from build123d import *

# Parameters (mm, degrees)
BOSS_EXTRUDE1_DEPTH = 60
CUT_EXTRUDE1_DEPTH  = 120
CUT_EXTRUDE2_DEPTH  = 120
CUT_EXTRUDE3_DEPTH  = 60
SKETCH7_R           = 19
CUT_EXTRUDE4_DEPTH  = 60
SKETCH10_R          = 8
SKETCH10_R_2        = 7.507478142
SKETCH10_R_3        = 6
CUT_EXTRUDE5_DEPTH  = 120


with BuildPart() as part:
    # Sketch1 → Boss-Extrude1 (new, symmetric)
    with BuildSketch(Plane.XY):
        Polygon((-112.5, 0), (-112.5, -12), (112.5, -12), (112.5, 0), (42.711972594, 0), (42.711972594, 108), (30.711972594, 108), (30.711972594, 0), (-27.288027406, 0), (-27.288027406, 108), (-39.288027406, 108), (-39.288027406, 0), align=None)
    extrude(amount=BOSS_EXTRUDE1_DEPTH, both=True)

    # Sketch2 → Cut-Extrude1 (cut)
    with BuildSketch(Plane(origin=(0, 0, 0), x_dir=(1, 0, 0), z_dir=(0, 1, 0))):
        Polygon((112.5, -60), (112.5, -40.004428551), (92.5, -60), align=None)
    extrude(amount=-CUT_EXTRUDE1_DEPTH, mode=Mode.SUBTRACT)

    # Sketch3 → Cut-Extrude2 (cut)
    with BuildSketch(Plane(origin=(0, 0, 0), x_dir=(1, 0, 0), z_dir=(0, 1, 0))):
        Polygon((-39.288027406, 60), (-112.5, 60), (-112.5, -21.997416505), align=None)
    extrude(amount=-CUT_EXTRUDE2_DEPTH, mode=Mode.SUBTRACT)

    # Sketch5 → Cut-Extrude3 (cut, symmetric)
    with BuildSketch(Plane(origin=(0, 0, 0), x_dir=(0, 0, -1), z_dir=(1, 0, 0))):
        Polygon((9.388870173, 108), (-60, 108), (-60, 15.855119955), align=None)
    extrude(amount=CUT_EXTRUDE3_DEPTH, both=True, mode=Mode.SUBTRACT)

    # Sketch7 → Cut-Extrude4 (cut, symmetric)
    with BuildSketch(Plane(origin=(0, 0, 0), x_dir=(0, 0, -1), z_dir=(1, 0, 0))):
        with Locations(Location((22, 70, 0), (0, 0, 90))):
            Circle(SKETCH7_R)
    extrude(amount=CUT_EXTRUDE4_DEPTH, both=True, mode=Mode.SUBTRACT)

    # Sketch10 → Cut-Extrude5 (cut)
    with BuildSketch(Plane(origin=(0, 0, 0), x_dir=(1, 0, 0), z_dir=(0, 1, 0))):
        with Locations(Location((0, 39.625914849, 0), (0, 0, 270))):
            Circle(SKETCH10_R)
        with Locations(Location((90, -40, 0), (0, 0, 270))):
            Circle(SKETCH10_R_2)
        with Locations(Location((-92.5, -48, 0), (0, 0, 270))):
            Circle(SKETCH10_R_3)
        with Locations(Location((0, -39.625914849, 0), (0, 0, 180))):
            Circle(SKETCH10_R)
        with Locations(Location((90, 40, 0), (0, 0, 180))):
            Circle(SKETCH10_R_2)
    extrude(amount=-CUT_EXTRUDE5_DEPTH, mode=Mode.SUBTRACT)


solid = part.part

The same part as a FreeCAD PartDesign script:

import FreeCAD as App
import Part
import Sketcher

V = App.Vector

doc = App.newDocument("Part")
params = doc.addObject("Spreadsheet::Sheet", "Params")
for row, (alias, value) in enumerate([
    ("sketch1_width", "225 mm"),
    ("sketch1_width2", "12 mm"),
    ("sketch1_width3", "58 mm"),
    ("sketch1_height", "108 mm"),
    ("pad1_length", "120 mm"),
    ("sketch2_width", "20 mm"),
    ("pocket1_length", "120 mm"),
    ("pocket2_length", "120 mm"),
    ("pocket3_length", "120 mm"),
    ("sketch5_diameter", "38 mm"),
    ("pocket4_length", "120 mm"),
    ("sketch6_diameter", "16 mm"),
    ("sketch6_diameter2", "12 mm"),
    ("pocket5_length", "120 mm"),
], start=1):
    params.set(f"A{row}", alias)
    params.set(f"B{row}", "=" + value)
    params.setAlias(f"B{row}", alias)

body = doc.addObject("PartDesign::Body", "Body")

# Sketch on XY plane
sketch1 = doc.addObject("Sketcher::SketchObject", "Sketch")
body.addObject(sketch1)
sketch1.AttachmentSupport = (doc.XY_Plane, [""])
sketch1.MapMode = "FlatFace"
sketch1.addGeometry(Part.LineSegment(V(-112.5, 0, 0), V(-112.5, -12, 0)), False)
sketch1.addGeometry(Part.LineSegment(V(-112.5, -12, 0), V(112.5, -12, 0)), False)
sketch1.addGeometry(Part.LineSegment(V(112.5, -12, 0), V(112.5, 0, 0)), False)
sketch1.addGeometry(Part.LineSegment(V(112.5, 0, 0), V(42.711973, 0, 0)), False)
sketch1.addGeometry(Part.LineSegment(V(42.711973, 0, 0), V(42.711973, 108, 0)), False)
sketch1.addGeometry(Part.LineSegment(V(42.711973, 108, 0), V(30.711973, 108, 0)), False)
sketch1.addGeometry(Part.LineSegment(V(30.711973, 108, 0), V(30.711973, 0, 0)), False)
sketch1.addGeometry(Part.LineSegment(V(30.711973, 0, 0), V(-27.288027, 0, 0)), False)
sketch1.addGeometry(Part.LineSegment(V(-27.288027, 0, 0), V(-27.288027, 108, 0)), False)
sketch1.addGeometry(Part.LineSegment(V(-27.288027, 108, 0), V(-39.288027, 108, 0)), False)
sketch1.addGeometry(Part.LineSegment(V(-39.288027, 108, 0), V(-39.288027, 0, 0)), False)
sketch1.addGeometry(Part.LineSegment(V(-39.288027, 0, 0), V(-112.5, 0, 0)), False)
sketch1.addConstraint(Sketcher.Constraint("Coincident", 0, 2, 1, 1))
sketch1.addConstraint(Sketcher.Constraint("Coincident", 1, 2, 2, 1))
sketch1.addConstraint(Sketcher.Constraint("Coincident", 2, 2, 3, 1))
sketch1.addConstraint(Sketcher.Constraint("Coincident", 3, 2, 4, 1))
sketch1.addConstraint(Sketcher.Constraint("Coincident", 4, 2, 5, 1))
sketch1.addConstraint(Sketcher.Constraint("Coincident", 5, 2, 6, 1))
sketch1.addConstraint(Sketcher.Constraint("Coincident", 6, 2, 7, 1))
sketch1.addConstraint(Sketcher.Constraint("Coincident", 7, 2, 8, 1))
sketch1.addConstraint(Sketcher.Constraint("Coincident", 8, 2, 9, 1))
sketch1.addConstraint(Sketcher.Constraint("Coincident", 9, 2, 10, 1))
sketch1.addConstraint(Sketcher.Constraint("Coincident", 10, 2, 11, 1))
sketch1.addConstraint(Sketcher.Constraint("Coincident", 11, 2, 0, 1))
sketch1.addConstraint(Sketcher.Constraint("Vertical", 0))
sketch1.addConstraint(Sketcher.Constraint("Horizontal", 1))
sketch1.addConstraint(Sketcher.Constraint("Vertical", 2))
sketch1.addConstraint(Sketcher.Constraint("Horizontal", 3))
sketch1.addConstraint(Sketcher.Constraint("Vertical", 4))
sketch1.addConstraint(Sketcher.Constraint("Horizontal", 5))
sketch1.addConstraint(Sketcher.Constraint("Vertical", 6))
sketch1.addConstraint(Sketcher.Constraint("Horizontal", 7))
sketch1.addConstraint(Sketcher.Constraint("Vertical", 8))
sketch1.addConstraint(Sketcher.Constraint("Horizontal", 9))
sketch1.addConstraint(Sketcher.Constraint("Vertical", 10))
sketch1.addConstraint(Sketcher.Constraint("Horizontal", 11))
sketch1.addConstraint(Sketcher.Constraint("Symmetric", 2, 2, 11, 2, -1, 1))
sketch1.addConstraint(Sketcher.Constraint("PointOnObject", 2, 2, -1))
sketch1.addConstraint(Sketcher.Constraint("PointOnObject", 6, 2, -1))
sketch1.addConstraint(Sketcher.Constraint("Horizontal", 5, 2, 8, 2))
sketch1.addConstraint(Sketcher.Constraint("Equal", 5, 9))
sketch1.addConstraint(Sketcher.Constraint("Equal", 9, 0))
sketch1.addConstraint(Sketcher.Constraint("DistanceX", 1, 1, 1, 2, 225.0))
sketch1.addConstraint(Sketcher.Constraint("DistanceX", 5, 2, 5, 1, 12.0))
sketch1.addConstraint(Sketcher.Constraint("DistanceX", 7, 2, 7, 1, 58.0))
sketch1.addConstraint(Sketcher.Constraint("DistanceY", 4, 1, 4, 2, 108.0))
sketch1.addConstraint(Sketcher.Constraint("DistanceX", 3, 2, 3, 1, 69.788027))
sketch1.setExpression("Constraints[30]", "Params.sketch1_width")
sketch1.setExpression("Constraints[31]", "Params.sketch1_width2")
sketch1.setExpression("Constraints[32]", "Params.sketch1_width3")
sketch1.setExpression("Constraints[33]", "Params.sketch1_height")
pad1 = doc.addObject("PartDesign::Pad", "Pad")
body.addObject(pad1)
pad1.Profile = sketch1
pad1.setExpression("Length", "Params.pad1_length")
pad1.Midplane = True

# Sketch on XZ plane
sketch2 = doc.addObject("Sketcher::SketchObject", "Sketch001")
body.addObject(sketch2)
sketch2.AttachmentSupport = (doc.XZ_Plane, [""])
sketch2.MapMode = "FlatFace"
sketch2.addGeometry(Part.LineSegment(V(112.5, 60, 0), V(112.5, 40.004429, 0)), False)
sketch2.addGeometry(Part.LineSegment(V(112.5, 40.004429, 0), V(92.5, 60, 0)), False)
sketch2.addGeometry(Part.LineSegment(V(92.5, 60, 0), V(112.5, 60, 0)), False)
sketch2.addConstraint(Sketcher.Constraint("Coincident", 0, 2, 1, 1))
sketch2.addConstraint(Sketcher.Constraint("Coincident", 1, 2, 2, 1))
sketch2.addConstraint(Sketcher.Constraint("Coincident", 2, 2, 0, 1))
sketch2.addConstraint(Sketcher.Constraint("Vertical", 0))
sketch2.addConstraint(Sketcher.Constraint("Horizontal", 2))
sketch2.addConstraint(Sketcher.Constraint("DistanceX", 2, 1, 2, 2, 20.0))
sketch2.addConstraint(Sketcher.Constraint("DistanceY", -1, 1, 1, 2, 60.0))
sketch2.addConstraint(Sketcher.Constraint("DistanceX", -1, 1, 0, 2, 112.5))
sketch2.addConstraint(Sketcher.Constraint("DistanceY", 0, 2, 0, 1, 19.995571))
sketch2.setExpression("Constraints[5]", "Params.sketch2_width")
pocket1 = doc.addObject("PartDesign::Pocket", "Pocket")
body.addObject(pocket1)
pocket1.Profile = sketch2
pocket1.setExpression("Length", "Params.pocket1_length")
pocket1.Reversed = True

# Sketch on XZ plane
sketch3 = doc.addObject("Sketcher::SketchObject", "Sketch002")
body.addObject(sketch3)
sketch3.AttachmentSupport = (doc.XZ_Plane, [""])
sketch3.MapMode = "FlatFace"
sketch3.addGeometry(Part.LineSegment(V(-39.288027, -60, 0), V(-112.5, -60, 0)), False)
sketch3.addGeometry(Part.LineSegment(V(-112.5, -60, 0), V(-112.5, 21.997417, 0)), False)
sketch3.addGeometry(Part.LineSegment(V(-112.5, 21.997417, 0), V(-39.288027, -60, 0)), False)
sketch3.addConstraint(Sketcher.Constraint("Coincident", 0, 2, 1, 1))
sketch3.addConstraint(Sketcher.Constraint("Coincident", 1, 2, 2, 1))
sketch3.addConstraint(Sketcher.Constraint("Coincident", 2, 2, 0, 1))
sketch3.addConstraint(Sketcher.Constraint("Horizontal", 0))
sketch3.addConstraint(Sketcher.Constraint("Vertical", 1))
sketch3.addConstraint(Sketcher.Constraint("DistanceY", 0, 2, -1, 1, 60.0))
sketch3.addConstraint(Sketcher.Constraint("DistanceX", 0, 2, -1, 1, 112.5))
sketch3.addConstraint(Sketcher.Constraint("Distance", 2, 109.925289))
sketch3.addConstraint(Sketcher.Constraint("DistanceX", 0, 2, 0, 1, 73.211973))
pocket2 = doc.addObject("PartDesign::Pocket", "Pocket001")
body.addObject(pocket2)
pocket2.Profile = sketch3
pocket2.setExpression("Length", "Params.pocket2_length")
pocket2.Reversed = True

# Sketch on YZ plane
sketch4 = doc.addObject("Sketcher::SketchObject", "Sketch003")
body.addObject(sketch4)
sketch4.AttachmentSupport = (doc.YZ_Plane, [""])
sketch4.MapMode = "FlatFace"
sketch4.addGeometry(Part.LineSegment(V(108, -9.38887, 0), V(108, 60, 0)), False)
sketch4.addGeometry(Part.LineSegment(V(108, 60, 0), V(15.85512, 60, 0)), False)
sketch4.addGeometry(Part.LineSegment(V(15.85512, 60, 0), V(108, -9.38887, 0)), False)
sketch4.addConstraint(Sketcher.Constraint("Coincident", 0, 2, 1, 1))
sketch4.addConstraint(Sketcher.Constraint("Coincident", 1, 2, 2, 1))
sketch4.addConstraint(Sketcher.Constraint("Coincident", 2, 2, 0, 1))
sketch4.addConstraint(Sketcher.Constraint("Vertical", 0))
sketch4.addConstraint(Sketcher.Constraint("Horizontal", 1))
sketch4.addConstraint(Sketcher.Constraint("DistanceX", -1, 1, 0, 2, 108.0))
sketch4.addConstraint(Sketcher.Constraint("DistanceY", -1, 1, 0, 2, 60.0))
sketch4.addConstraint(Sketcher.Constraint("DistanceX", 1, 2, 1, 1, 92.14488))
sketch4.addConstraint(Sketcher.Constraint("DistanceY", 0, 1, 0, 2, 69.38887))
pocket3 = doc.addObject("PartDesign::Pocket", "Pocket002")
body.addObject(pocket3)
pocket3.Profile = sketch4
pocket3.setExpression("Length", "Params.pocket3_length")
pocket3.Midplane = True

# Sketch on YZ plane
sketch5 = doc.addObject("Sketcher::SketchObject", "Sketch004")
body.addObject(sketch5)
sketch5.AttachmentSupport = (doc.YZ_Plane, [""])
sketch5.MapMode = "FlatFace"
sketch5.addGeometry(Part.Circle(V(70, -22, 0), V(0, 0, 1), 19), False)
sketch5.addConstraint(Sketcher.Constraint("Diameter", 0, 38.0))
sketch5.addConstraint(Sketcher.Constraint("DistanceX", -1, 1, 0, 3, 70.0))
sketch5.addConstraint(Sketcher.Constraint("DistanceY", 0, 3, -1, 1, 22.0))
sketch5.setExpression("Constraints[0]", "Params.sketch5_diameter")
pocket4 = doc.addObject("PartDesign::Pocket", "Pocket003")
body.addObject(pocket4)
pocket4.Profile = sketch5
pocket4.setExpression("Length", "Params.pocket4_length")
pocket4.Midplane = True

# Sketch on XZ plane
sketch6 = doc.addObject("Sketcher::SketchObject", "Sketch005")
body.addObject(sketch6)
sketch6.AttachmentSupport = (doc.XZ_Plane, [""])
sketch6.MapMode = "FlatFace"
sketch6.addGeometry(Part.Circle(V(0, -39.625915, 0), V(0, 0, 1), 8), False)
sketch6.addGeometry(Part.Circle(V(90, 40, 0), V(0, 0, 1), 7.507478), False)
sketch6.addGeometry(Part.Circle(V(-92.5, 48, 0), V(0, 0, 1), 6), False)
sketch6.addGeometry(Part.Circle(V(0, 39.625915, 0), V(0, 0, 1), 8), False)
sketch6.addGeometry(Part.Circle(V(90, -40, 0), V(0, 0, 1), 7.507478), False)
sketch6.addConstraint(Sketcher.Constraint("Equal", 0, 3))
sketch6.addConstraint(Sketcher.Constraint("Equal", 1, 4))
sketch6.addConstraint(Sketcher.Constraint("Symmetric", 0, 3, 3, 3, -1, 1))
sketch6.addConstraint(Sketcher.Constraint("Symmetric", 1, 3, 4, 3, -1))
sketch6.addConstraint(Sketcher.Constraint("PointOnObject", 0, 3, -2))
sketch6.addConstraint(Sketcher.Constraint("Diameter", 0, 16.0))
sketch6.addConstraint(Sketcher.Constraint("Diameter", 2, 12.0))
sketch6.addConstraint(Sketcher.Constraint("DistanceX", -1, 1, 1, 3, 90.0))
sketch6.addConstraint(Sketcher.Constraint("DistanceY", -1, 1, 1, 3, 40.0))
sketch6.addConstraint(Sketcher.Constraint("DistanceY", -1, 1, 2, 3, 48.0))
sketch6.addConstraint(Sketcher.Constraint("DistanceX", 2, 3, -1, 1, 92.5))
sketch6.addConstraint(Sketcher.Constraint("Diameter", 1, 15.014956))
sketch6.addConstraint(Sketcher.Constraint("DistanceY", 0, 3, 3, 3, 79.25183))
sketch6.setExpression("Constraints[5]", "Params.sketch6_diameter")
sketch6.setExpression("Constraints[6]", "Params.sketch6_diameter2")
pocket5 = doc.addObject("PartDesign::Pocket", "Pocket004")
body.addObject(pocket5)
pocket5.Profile = sketch6
pocket5.setExpression("Length", "Params.pocket5_length")
pocket5.Reversed = True

doc.recompute()
